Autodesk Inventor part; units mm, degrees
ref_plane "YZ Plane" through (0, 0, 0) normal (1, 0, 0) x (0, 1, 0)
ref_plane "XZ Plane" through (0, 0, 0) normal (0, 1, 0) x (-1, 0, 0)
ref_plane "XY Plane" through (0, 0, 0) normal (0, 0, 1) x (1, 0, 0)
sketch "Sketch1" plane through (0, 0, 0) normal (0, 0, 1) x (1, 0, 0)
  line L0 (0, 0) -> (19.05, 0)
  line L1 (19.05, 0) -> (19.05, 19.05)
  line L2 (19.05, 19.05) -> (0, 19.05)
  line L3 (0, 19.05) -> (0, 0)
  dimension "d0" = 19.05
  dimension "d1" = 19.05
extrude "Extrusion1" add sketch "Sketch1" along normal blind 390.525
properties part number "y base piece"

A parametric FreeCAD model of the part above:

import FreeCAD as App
import Part
import Sketcher
from FreeCAD import Vector
Q = App.Units.Quantity


def add_polygon(sketch, points):
    """Adds a closed chain of lines whose ends are joined by coincident constraints."""
    first, n = sketch.GeometryCount, len(points)
    for a, b in zip(points, points[1:] + points[:1]):
        sketch.addGeometry(Part.LineSegment(App.Vector(*a, 0), App.Vector(*b, 0)), False)
    for i in range(n):
        sketch.addConstraint(Sketcher.Constraint("Coincident", first + i, 2, first + (i + 1) % n, 1))

doc = App.newDocument("Part")
params = doc.addObject("Spreadsheet::Sheet", "Params")
for row, (alias, value) in enumerate([
    ("sketch1_width", "0.75 in"),
    ("pad1_length", "15.375 in"),
], start=1):
    params.set(f"A{row}", alias)
    params.set(f"B{row}", "=" + value)
    params.setAlias(f"B{row}", alias)

body = doc.addObject("PartDesign::Body", "Body")

# Sketch on XY plane
sketch1 = body.newObject("Sketcher::SketchObject", "Sketch")
sketch1.AttachmentSupport = (doc.getObject("XY_Plane"), [""])
sketch1.MapMode = "FlatFace"
add_polygon(sketch1, [(0, 19), (0, 0), (19, 0), (19, 19)])  # lines 0-3
sketch1.addConstraint([
    Sketcher.Constraint("Vertical", 0),
    Sketcher.Constraint("Horizontal", 1),
    Sketcher.Constraint("Vertical", 2),
    Sketcher.Constraint("Horizontal", 3),
    Sketcher.Constraint("Coincident", 0, 2, -1, 1),
    Sketcher.Constraint("Equal", 3, 0),
    Sketcher.Constraint("DistanceX", 1, 1, 1, 2, Q("0.75 in")),
])
sketch1.setExpression("Constraints[10]", "Params.sketch1_width")
pad1 = body.newObject("PartDesign::Pad", "Pad")
pad1.Profile = sketch1
pad1.setExpression("Length", "Params.pad1_length")

doc.recompute()
